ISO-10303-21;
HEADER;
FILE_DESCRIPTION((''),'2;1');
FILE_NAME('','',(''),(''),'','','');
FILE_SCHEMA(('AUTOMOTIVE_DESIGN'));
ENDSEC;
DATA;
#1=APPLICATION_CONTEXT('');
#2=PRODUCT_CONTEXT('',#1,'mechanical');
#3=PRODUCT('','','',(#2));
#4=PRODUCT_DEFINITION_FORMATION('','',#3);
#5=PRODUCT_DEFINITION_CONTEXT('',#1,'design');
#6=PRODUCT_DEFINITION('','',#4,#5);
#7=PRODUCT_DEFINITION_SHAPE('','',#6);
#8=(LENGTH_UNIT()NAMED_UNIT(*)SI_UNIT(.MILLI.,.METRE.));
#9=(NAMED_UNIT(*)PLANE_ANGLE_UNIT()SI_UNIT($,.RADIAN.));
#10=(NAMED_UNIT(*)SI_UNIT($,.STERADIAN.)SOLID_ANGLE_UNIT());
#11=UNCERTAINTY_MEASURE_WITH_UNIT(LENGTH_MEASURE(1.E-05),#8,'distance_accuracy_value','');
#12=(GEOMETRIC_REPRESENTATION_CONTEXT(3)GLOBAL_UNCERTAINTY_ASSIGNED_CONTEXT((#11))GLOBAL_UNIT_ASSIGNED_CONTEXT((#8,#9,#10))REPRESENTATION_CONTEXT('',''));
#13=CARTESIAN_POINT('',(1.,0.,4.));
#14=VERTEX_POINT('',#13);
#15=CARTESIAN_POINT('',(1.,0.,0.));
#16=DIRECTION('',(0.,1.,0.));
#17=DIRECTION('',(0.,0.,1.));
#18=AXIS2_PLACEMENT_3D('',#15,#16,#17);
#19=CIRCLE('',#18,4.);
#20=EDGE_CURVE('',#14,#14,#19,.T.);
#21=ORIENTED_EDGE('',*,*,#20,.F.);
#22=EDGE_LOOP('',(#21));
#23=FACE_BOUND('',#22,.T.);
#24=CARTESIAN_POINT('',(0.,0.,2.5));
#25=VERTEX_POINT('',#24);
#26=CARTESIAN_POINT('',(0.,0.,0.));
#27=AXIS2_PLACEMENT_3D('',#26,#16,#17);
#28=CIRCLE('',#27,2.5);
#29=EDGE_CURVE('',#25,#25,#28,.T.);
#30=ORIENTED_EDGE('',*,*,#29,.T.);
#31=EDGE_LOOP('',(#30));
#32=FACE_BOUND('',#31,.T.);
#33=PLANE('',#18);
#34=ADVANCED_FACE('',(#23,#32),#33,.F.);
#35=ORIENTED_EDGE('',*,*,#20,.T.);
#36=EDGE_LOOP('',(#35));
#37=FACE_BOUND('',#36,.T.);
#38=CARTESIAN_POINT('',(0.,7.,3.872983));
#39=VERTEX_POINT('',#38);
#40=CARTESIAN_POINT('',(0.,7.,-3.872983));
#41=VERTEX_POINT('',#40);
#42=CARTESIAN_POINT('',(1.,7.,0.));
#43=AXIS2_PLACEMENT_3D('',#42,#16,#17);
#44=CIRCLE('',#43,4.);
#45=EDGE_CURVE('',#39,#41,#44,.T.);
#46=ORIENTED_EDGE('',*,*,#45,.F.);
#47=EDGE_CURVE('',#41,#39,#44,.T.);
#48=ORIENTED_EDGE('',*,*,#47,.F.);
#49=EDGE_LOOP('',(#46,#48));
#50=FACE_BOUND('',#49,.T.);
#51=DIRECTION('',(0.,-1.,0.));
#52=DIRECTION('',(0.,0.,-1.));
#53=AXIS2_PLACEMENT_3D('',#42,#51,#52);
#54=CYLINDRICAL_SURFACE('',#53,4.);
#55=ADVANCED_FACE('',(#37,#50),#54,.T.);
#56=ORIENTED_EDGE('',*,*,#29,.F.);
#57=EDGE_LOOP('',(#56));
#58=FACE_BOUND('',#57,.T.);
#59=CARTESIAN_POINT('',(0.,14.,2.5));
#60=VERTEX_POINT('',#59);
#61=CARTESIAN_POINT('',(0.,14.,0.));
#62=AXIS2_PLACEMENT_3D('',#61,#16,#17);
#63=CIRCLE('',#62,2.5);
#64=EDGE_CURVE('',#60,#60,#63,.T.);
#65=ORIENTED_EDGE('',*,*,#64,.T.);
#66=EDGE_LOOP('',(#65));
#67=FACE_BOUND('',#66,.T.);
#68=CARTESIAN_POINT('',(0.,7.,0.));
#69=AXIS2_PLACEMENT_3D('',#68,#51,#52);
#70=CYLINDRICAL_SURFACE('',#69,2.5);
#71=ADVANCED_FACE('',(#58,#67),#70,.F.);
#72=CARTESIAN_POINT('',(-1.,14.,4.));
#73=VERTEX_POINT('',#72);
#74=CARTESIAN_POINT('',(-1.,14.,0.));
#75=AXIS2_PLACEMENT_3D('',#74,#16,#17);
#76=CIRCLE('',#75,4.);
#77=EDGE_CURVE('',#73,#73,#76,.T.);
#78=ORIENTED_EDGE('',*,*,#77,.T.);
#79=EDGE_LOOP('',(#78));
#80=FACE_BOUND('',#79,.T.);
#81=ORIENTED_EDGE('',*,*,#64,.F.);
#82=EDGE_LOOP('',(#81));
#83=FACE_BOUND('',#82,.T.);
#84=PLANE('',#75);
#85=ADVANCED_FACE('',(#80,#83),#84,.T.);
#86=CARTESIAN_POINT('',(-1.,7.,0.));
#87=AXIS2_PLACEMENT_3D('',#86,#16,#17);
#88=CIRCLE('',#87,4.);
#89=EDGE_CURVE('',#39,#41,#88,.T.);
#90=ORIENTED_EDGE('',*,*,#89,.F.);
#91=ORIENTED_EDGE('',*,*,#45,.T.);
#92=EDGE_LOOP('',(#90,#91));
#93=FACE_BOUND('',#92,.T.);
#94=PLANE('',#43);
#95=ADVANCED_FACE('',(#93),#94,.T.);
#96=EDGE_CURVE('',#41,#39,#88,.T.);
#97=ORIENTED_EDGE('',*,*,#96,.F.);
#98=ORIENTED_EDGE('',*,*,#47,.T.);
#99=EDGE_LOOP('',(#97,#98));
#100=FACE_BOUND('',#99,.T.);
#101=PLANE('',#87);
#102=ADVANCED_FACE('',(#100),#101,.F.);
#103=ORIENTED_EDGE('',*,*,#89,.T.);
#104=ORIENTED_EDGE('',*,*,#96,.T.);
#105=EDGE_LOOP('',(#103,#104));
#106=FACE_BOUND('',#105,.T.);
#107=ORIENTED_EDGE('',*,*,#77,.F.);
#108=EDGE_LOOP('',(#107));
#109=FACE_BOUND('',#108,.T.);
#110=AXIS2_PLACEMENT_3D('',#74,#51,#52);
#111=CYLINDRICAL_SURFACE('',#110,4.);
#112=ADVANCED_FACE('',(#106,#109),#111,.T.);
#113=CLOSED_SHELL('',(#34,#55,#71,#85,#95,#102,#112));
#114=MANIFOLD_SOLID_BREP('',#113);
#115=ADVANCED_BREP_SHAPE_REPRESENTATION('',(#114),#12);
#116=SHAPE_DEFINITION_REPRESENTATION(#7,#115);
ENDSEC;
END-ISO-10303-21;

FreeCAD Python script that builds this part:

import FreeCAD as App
import Part
import Sketcher

V = App.Vector

doc = App.newDocument("Part")
body = doc.addObject("PartDesign::Body", "Body")

# Sketch on XZ plane
sketch1 = body.newObject("Sketcher::SketchObject", "Sketch")
sketch1.AttachmentSupport = (doc.getObject("XZ_Plane"), [""])
sketch1.MapMode = "FlatFace"
sketch1.addGeometry(Part.Circle(V(1, 0, 0), V(0, 0, 1), 4), False)
sketch1.addGeometry(Part.Circle(V(0, 0, 0), V(0, 0, 1), 2.5), False)
sketch1.addConstraint(Sketcher.Constraint("Coincident", 1, 3, -1, 1))
sketch1.addConstraint(Sketcher.Constraint("PointOnObject", 0, 3, -1))
sketch1.addConstraint(Sketcher.Constraint("Diameter", 0, 8.0))
sketch1.addConstraint(Sketcher.Constraint("Diameter", 1, 5.0))
sketch1.addConstraint(Sketcher.Constraint("DistanceX", -1, 1, 0, 3, 1.0))
pad1 = body.newObject("PartDesign::Pad", "Pad")
pad1.Profile = sketch1
pad1.Length = 7
pad1.Reversed = True

# Sketch on XZ plane
sketch2 = body.newObject("Sketcher::SketchObject", "Sketch001")
sketch2.AttachmentSupport = (doc.getObject("XZ_Plane"), [""])
sketch2.MapMode = "FlatFace"
sketch2.AttachmentOffset = App.Placement(V(0, 0, -7), App.Rotation())
sketch2.addGeometry(Part.Circle(V(-1, 0, 0), V(0, 0, 1), 4), False)
sketch2.addGeometry(Part.Circle(V(0, 0, 0), V(0, 0, 1), 2.5), False)
sketch2.addConstraint(Sketcher.Constraint("Coincident", 1, 3, -1, 1))
sketch2.addConstraint(Sketcher.Constraint("PointOnObject", 0, 3, -1))
sketch2.addConstraint(Sketcher.Constraint("Diameter", 0, 8.0))
sketch2.addConstraint(Sketcher.Constraint("Diameter", 1, 5.0))
sketch2.addConstraint(Sketcher.Constraint("DistanceX", 0, 3, -1, 1, 1.0))
pad2 = body.newObject("PartDesign::Pad", "Pad001")
pad2.Profile = sketch2
pad2.Length = 7
pad2.Reversed = True

doc.recompute()
